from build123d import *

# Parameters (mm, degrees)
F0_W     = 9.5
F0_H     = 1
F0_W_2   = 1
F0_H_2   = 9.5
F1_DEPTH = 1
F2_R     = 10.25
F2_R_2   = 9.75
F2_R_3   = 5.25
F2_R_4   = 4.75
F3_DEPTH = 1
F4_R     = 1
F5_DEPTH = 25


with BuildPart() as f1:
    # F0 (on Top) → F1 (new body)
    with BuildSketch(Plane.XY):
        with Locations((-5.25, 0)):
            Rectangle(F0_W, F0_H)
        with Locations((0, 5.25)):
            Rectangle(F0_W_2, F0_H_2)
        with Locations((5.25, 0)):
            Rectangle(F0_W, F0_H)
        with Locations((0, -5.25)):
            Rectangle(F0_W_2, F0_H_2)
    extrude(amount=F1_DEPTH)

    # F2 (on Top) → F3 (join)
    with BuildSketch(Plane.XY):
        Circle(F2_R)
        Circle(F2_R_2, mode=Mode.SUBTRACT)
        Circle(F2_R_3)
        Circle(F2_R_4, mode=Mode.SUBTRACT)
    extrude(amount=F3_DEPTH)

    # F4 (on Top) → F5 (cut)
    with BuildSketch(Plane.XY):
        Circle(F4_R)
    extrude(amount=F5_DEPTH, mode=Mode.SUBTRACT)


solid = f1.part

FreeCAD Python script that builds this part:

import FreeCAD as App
import Part
import Sketcher

V = App.Vector
Q = App.Units.Quantity


def add_polygon(sketch, points):
    """Adds a closed chain of lines whose ends are joined by coincident constraints."""
    first, n = sketch.GeometryCount, len(points)
    for a, b in zip(points, points[1:] + points[:1]):
        sketch.addGeometry(Part.LineSegment(App.Vector(*a, 0), App.Vector(*b, 0)), False)
    for i in range(n):
        sketch.addConstraint(Sketcher.Constraint("Coincident", first + i, 2, first + (i + 1) % n, 1))

doc = App.newDocument("Part")
params = doc.addObject("Spreadsheet::Sheet", "Params")
for row, (alias, value) in enumerate([
    ("sketch1_width", "1 mm"),
    ("sketch1_width2", "9.5 mm"),
    ("pad1_length", "1 mm"),
    ("sketch2_diameter", "20.5 mm"),
    ("sketch2_diameter2", "19.5 mm"),
    ("sketch2_diameter3", "10.5 mm"),
    ("sketch2_diameter4", "9.5 mm"),
    ("pad2_length", "1 mm"),
    ("sketch3_diameter", "2 mm"),
    ("pocket1_length", "25 mm"),
], start=1):
    params.set(f"A{row}", alias)
    params.set(f"B{row}", "=" + value)
    params.setAlias(f"B{row}", alias)

body = doc.addObject("PartDesign::Body", "Body")
body.AllowCompound = True

sketch1 = body.newObject("Sketcher::SketchObject", "Sketch")
sketch1.AttachmentSupport = (doc.getObject("XY_Plane"), [""])
sketch1.MapMode = "FlatFace"
add_polygon(sketch1, [(-10, 0.5), (-10, -0.5), (-0.5, -0.5), (-0.5, 0.5)])
add_polygon(sketch1, [(-0.5, 10), (-0.5, 0.5), (0.5, 0.5), (0.5, 10)])
add_polygon(sketch1, [(0.5, 0.5), (0.5, -0.5), (10, -0.5), (10, 0.5)])
add_polygon(sketch1, [(-0.5, -0.5), (-0.5, -10), (0.5, -10), (0.5, -0.5)])
sketch1.addConstraint([
    Sketcher.Constraint("Vertical", 0),
    Sketcher.Constraint("Horizontal", 1),
    Sketcher.Constraint("Vertical", 2),
    Sketcher.Constraint("Horizontal", 3),
    Sketcher.Constraint("Vertical", 4),
    Sketcher.Constraint("Horizontal", 5),
    Sketcher.Constraint("Vertical", 6),
    Sketcher.Constraint("Horizontal", 7),
    Sketcher.Constraint("Vertical", 8),
    Sketcher.Constraint("Horizontal", 9),
    Sketcher.Constraint("Vertical", 10),
    Sketcher.Constraint("Horizontal", 11),
    Sketcher.Constraint("Vertical", 12),
    Sketcher.Constraint("Horizontal", 13),
    Sketcher.Constraint("Vertical", 14),
    Sketcher.Constraint("Horizontal", 15),
    Sketcher.Constraint("Coincident", 4, 2, 2, 2),
    Sketcher.Constraint("Coincident", 11, 2, 5, 2),
    Sketcher.Constraint("Coincident", 14, 2, 8, 2),
    Sketcher.Constraint("Coincident", 15, 2, 1, 2),
    Sketcher.Constraint("Symmetric", 1, 2, 5, 2, -1, 1),
    Sketcher.Constraint("Equal", 3, 9),
    Sketcher.Constraint("Equal", 15, 0),
    Sketcher.Constraint("Equal", 11, 4),
    Sketcher.Constraint("Equal", 6, 12),
    Sketcher.Constraint("DistanceX", 5, 1, 5, 2, Q("1 mm")),
    Sketcher.Constraint("DistanceX", 1, 1, 1, 2, Q("9.5 mm")),
])
sketch1.setExpression("Constraints[41]", "Params.sketch1_width")
sketch1.setExpression("Constraints[42]", "Params.sketch1_width2")
pad1 = body.newObject("PartDesign::Pad", "Pad")
pad1.Profile = sketch1
pad1.setExpression("Length", "Params.pad1_length")

sketch2 = body.newObject("Sketcher::SketchObject", "Sketch001")
sketch2.AttachmentSupport = (doc.getObject("XY_Plane"), [""])
sketch2.MapMode = "FlatFace"
sketch2.addGeometry([
    Part.Circle(V(0, 0, 0), V(0, 0, 1), 10.2),
    Part.Circle(V(0, 0, 0), V(0, 0, 1), 9.8),
    Part.Circle(V(0, 0, 0), V(0, 0, 1), 5.2),
    Part.Circle(V(0, 0, 0), V(0, 0, 1), 4.8),
], False)
sketch2.addConstraint([
    Sketcher.Constraint("Coincident", 0, 3, -1, 1),
    Sketcher.Constraint("Coincident", 1, 3, -1, 1),
    Sketcher.Constraint("Coincident", 2, 3, -1, 1),
    Sketcher.Constraint("Coincident", 3, 3, -1, 1),
    Sketcher.Constraint("Diameter", 0, Q("20.5 mm")),
    Sketcher.Constraint("Diameter", 1, Q("19.5 mm")),
    Sketcher.Constraint("Diameter", 2, Q("10.5 mm")),
    Sketcher.Constraint("Diameter", 3, Q("9.5 mm")),
])
sketch2.setExpression("Constraints[4]", "Params.sketch2_diameter")
sketch2.setExpression("Constraints[5]", "Params.sketch2_diameter2")
sketch2.setExpression("Constraints[6]", "Params.sketch2_diameter3")
sketch2.setExpression("Constraints[7]", "Params.sketch2_diameter4")
pad2 = body.newObject("PartDesign::Pad", "Pad001")
pad2.Profile = sketch2
pad2.setExpression("Length", "Params.pad2_length")

sketch3 = body.newObject("Sketcher::SketchObject", "Sketch002")
sketch3.AttachmentSupport = (doc.getObject("XY_Plane"), [""])
sketch3.MapMode = "FlatFace"
sketch3.addGeometry(Part.Circle(V(0, 0, 0), V(0, 0, 1), 1), False)
sketch3.addConstraint([
    Sketcher.Constraint("Coincident", 0, 3, -1, 1),
    Sketcher.Constraint("Diameter", 0, Q("2 mm")),
])
sketch3.setExpression("Constraints[1]", "Params.sketch3_diameter")
pocket1 = body.newObject("PartDesign::Pocket", "Pocket")
pocket1.Profile = sketch3
pocket1.setExpression("Length", "Params.pocket1_length")
pocket1.Reversed = True

doc.recompute()
